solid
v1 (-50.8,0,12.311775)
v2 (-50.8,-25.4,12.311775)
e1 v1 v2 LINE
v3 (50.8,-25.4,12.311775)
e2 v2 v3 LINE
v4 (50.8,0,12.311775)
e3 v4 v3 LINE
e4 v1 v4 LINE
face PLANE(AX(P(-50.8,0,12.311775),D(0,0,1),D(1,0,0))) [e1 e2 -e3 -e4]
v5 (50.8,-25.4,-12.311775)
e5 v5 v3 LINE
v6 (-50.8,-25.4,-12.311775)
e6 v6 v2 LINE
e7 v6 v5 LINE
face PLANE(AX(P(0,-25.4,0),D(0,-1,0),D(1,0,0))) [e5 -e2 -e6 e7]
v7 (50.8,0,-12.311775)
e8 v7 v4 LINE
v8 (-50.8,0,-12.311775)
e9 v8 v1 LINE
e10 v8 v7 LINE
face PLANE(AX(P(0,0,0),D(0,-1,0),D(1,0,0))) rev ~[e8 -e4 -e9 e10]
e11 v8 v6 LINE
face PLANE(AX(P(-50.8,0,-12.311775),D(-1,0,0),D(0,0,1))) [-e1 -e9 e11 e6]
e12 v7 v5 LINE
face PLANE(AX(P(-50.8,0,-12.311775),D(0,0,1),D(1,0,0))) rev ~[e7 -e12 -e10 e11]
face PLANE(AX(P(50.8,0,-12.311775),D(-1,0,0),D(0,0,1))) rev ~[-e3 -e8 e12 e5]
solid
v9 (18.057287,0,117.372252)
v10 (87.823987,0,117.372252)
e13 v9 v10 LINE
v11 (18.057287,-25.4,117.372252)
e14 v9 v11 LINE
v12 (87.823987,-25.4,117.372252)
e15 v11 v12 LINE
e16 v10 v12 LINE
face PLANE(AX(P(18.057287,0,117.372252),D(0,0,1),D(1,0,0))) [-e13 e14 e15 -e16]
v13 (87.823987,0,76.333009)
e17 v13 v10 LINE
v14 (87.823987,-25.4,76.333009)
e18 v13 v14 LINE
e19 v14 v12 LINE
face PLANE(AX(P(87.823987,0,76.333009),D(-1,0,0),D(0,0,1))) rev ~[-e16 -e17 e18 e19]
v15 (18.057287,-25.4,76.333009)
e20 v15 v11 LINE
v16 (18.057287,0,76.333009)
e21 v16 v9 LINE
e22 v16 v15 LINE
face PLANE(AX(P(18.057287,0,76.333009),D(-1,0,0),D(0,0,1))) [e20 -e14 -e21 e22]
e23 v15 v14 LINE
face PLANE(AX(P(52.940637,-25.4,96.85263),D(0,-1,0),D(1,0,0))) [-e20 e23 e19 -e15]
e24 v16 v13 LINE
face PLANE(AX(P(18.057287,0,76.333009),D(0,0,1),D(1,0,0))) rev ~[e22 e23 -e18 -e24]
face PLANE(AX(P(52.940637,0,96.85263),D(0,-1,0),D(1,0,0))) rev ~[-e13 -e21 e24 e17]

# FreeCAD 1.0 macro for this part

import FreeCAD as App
import Part
import Sketcher

V = App.Vector
Q = App.Units.Quantity

doc = App.newDocument("Part")
body = doc.addObject("PartDesign::Body", "Body")
body.AllowCompound = True

# Sketch on XZ plane
sketch1 = body.newObject("Sketcher::SketchObject", "Sketch")
sketch1.AttachmentSupport = (doc.getObject("XZ_Plane"), [""])
sketch1.MapMode = "FlatFace"
sketch1.addGeometry(Part.LineSegment(V(18, 117, 0), V(18, 76, 0)), False)
sketch1.addGeometry(Part.LineSegment(V(18, 76, 0), V(88, 76, 0)), False)
sketch1.addGeometry(Part.LineSegment(V(88, 76, 0), V(88, 117, 0)), False)
sketch1.addGeometry(Part.LineSegment(V(88, 117, 0), V(18, 117, 0)), False)
sketch1.addGeometry(Part.LineSegment(V(-51, 12, 0), V(-51, -12, 0)), False)
sketch1.addGeometry(Part.LineSegment(V(-51, -12, 0), V(51, -12, 0)), False)
sketch1.addGeometry(Part.LineSegment(V(51, -12, 0), V(51, 12, 0)), False)
sketch1.addGeometry(Part.LineSegment(V(51, 12, 0), V(-51, 12, 0)), False)
sketch1.addConstraint(Sketcher.Constraint("Coincident", 0, 2, 1, 1))
sketch1.addConstraint(Sketcher.Constraint("Coincident", 1, 2, 2, 1))
sketch1.addConstraint(Sketcher.Constraint("Coincident", 2, 2, 3, 1))
sketch1.addConstraint(Sketcher.Constraint("Coincident", 3, 2, 0, 1))
sketch1.addConstraint(Sketcher.Constraint("Coincident", 4, 2, 5, 1))
sketch1.addConstraint(Sketcher.Constraint("Coincident", 5, 2, 6, 1))
sketch1.addConstraint(Sketcher.Constraint("Coincident", 6, 2, 7, 1))
sketch1.addConstraint(Sketcher.Constraint("Coincident", 7, 2, 4, 1))
sketch1.addConstraint(Sketcher.Constraint("Vertical", 0))
sketch1.addConstraint(Sketcher.Constraint("Horizontal", 1))
sketch1.addConstraint(Sketcher.Constraint("Vertical", 2))
sketch1.addConstraint(Sketcher.Constraint("Horizontal", 3))
sketch1.addConstraint(Sketcher.Constraint("Vertical", 4))
sketch1.addConstraint(Sketcher.Constraint("Horizontal", 5))
sketch1.addConstraint(Sketcher.Constraint("Vertical", 6))
sketch1.addConstraint(Sketcher.Constraint("Horizontal", 7))
sketch1.addConstraint(Sketcher.Constraint("Symmetric", 4, 2, 6, 2, -1, 1))
sketch1.addConstraint(Sketcher.Constraint("DistanceX", 5, 1, 5, 2, Q("4 in")))
sketch1.addConstraint(Sketcher.Constraint("DistanceX", 1, 1, 1, 2, 69.7667))
sketch1.addConstraint(Sketcher.Constraint("DistanceY", 4, 2, 4, 1, 24.62355))
sketch1.addConstraint(Sketcher.Constraint("DistanceY", 0, 2, 0, 1, 41.039243))
sketch1.addConstraint(Sketcher.Constraint("DistanceY", -1, 1, 0, 2, 76.333009))
sketch1.addConstraint(Sketcher.Constraint("DistanceX", -1, 1, 0, 2, 18.057287))
pad1 = body.newObject("PartDesign::Pad", "Pad")
pad1.Profile = sketch1
pad1.Length = Q("1 in")

doc.recompute()
